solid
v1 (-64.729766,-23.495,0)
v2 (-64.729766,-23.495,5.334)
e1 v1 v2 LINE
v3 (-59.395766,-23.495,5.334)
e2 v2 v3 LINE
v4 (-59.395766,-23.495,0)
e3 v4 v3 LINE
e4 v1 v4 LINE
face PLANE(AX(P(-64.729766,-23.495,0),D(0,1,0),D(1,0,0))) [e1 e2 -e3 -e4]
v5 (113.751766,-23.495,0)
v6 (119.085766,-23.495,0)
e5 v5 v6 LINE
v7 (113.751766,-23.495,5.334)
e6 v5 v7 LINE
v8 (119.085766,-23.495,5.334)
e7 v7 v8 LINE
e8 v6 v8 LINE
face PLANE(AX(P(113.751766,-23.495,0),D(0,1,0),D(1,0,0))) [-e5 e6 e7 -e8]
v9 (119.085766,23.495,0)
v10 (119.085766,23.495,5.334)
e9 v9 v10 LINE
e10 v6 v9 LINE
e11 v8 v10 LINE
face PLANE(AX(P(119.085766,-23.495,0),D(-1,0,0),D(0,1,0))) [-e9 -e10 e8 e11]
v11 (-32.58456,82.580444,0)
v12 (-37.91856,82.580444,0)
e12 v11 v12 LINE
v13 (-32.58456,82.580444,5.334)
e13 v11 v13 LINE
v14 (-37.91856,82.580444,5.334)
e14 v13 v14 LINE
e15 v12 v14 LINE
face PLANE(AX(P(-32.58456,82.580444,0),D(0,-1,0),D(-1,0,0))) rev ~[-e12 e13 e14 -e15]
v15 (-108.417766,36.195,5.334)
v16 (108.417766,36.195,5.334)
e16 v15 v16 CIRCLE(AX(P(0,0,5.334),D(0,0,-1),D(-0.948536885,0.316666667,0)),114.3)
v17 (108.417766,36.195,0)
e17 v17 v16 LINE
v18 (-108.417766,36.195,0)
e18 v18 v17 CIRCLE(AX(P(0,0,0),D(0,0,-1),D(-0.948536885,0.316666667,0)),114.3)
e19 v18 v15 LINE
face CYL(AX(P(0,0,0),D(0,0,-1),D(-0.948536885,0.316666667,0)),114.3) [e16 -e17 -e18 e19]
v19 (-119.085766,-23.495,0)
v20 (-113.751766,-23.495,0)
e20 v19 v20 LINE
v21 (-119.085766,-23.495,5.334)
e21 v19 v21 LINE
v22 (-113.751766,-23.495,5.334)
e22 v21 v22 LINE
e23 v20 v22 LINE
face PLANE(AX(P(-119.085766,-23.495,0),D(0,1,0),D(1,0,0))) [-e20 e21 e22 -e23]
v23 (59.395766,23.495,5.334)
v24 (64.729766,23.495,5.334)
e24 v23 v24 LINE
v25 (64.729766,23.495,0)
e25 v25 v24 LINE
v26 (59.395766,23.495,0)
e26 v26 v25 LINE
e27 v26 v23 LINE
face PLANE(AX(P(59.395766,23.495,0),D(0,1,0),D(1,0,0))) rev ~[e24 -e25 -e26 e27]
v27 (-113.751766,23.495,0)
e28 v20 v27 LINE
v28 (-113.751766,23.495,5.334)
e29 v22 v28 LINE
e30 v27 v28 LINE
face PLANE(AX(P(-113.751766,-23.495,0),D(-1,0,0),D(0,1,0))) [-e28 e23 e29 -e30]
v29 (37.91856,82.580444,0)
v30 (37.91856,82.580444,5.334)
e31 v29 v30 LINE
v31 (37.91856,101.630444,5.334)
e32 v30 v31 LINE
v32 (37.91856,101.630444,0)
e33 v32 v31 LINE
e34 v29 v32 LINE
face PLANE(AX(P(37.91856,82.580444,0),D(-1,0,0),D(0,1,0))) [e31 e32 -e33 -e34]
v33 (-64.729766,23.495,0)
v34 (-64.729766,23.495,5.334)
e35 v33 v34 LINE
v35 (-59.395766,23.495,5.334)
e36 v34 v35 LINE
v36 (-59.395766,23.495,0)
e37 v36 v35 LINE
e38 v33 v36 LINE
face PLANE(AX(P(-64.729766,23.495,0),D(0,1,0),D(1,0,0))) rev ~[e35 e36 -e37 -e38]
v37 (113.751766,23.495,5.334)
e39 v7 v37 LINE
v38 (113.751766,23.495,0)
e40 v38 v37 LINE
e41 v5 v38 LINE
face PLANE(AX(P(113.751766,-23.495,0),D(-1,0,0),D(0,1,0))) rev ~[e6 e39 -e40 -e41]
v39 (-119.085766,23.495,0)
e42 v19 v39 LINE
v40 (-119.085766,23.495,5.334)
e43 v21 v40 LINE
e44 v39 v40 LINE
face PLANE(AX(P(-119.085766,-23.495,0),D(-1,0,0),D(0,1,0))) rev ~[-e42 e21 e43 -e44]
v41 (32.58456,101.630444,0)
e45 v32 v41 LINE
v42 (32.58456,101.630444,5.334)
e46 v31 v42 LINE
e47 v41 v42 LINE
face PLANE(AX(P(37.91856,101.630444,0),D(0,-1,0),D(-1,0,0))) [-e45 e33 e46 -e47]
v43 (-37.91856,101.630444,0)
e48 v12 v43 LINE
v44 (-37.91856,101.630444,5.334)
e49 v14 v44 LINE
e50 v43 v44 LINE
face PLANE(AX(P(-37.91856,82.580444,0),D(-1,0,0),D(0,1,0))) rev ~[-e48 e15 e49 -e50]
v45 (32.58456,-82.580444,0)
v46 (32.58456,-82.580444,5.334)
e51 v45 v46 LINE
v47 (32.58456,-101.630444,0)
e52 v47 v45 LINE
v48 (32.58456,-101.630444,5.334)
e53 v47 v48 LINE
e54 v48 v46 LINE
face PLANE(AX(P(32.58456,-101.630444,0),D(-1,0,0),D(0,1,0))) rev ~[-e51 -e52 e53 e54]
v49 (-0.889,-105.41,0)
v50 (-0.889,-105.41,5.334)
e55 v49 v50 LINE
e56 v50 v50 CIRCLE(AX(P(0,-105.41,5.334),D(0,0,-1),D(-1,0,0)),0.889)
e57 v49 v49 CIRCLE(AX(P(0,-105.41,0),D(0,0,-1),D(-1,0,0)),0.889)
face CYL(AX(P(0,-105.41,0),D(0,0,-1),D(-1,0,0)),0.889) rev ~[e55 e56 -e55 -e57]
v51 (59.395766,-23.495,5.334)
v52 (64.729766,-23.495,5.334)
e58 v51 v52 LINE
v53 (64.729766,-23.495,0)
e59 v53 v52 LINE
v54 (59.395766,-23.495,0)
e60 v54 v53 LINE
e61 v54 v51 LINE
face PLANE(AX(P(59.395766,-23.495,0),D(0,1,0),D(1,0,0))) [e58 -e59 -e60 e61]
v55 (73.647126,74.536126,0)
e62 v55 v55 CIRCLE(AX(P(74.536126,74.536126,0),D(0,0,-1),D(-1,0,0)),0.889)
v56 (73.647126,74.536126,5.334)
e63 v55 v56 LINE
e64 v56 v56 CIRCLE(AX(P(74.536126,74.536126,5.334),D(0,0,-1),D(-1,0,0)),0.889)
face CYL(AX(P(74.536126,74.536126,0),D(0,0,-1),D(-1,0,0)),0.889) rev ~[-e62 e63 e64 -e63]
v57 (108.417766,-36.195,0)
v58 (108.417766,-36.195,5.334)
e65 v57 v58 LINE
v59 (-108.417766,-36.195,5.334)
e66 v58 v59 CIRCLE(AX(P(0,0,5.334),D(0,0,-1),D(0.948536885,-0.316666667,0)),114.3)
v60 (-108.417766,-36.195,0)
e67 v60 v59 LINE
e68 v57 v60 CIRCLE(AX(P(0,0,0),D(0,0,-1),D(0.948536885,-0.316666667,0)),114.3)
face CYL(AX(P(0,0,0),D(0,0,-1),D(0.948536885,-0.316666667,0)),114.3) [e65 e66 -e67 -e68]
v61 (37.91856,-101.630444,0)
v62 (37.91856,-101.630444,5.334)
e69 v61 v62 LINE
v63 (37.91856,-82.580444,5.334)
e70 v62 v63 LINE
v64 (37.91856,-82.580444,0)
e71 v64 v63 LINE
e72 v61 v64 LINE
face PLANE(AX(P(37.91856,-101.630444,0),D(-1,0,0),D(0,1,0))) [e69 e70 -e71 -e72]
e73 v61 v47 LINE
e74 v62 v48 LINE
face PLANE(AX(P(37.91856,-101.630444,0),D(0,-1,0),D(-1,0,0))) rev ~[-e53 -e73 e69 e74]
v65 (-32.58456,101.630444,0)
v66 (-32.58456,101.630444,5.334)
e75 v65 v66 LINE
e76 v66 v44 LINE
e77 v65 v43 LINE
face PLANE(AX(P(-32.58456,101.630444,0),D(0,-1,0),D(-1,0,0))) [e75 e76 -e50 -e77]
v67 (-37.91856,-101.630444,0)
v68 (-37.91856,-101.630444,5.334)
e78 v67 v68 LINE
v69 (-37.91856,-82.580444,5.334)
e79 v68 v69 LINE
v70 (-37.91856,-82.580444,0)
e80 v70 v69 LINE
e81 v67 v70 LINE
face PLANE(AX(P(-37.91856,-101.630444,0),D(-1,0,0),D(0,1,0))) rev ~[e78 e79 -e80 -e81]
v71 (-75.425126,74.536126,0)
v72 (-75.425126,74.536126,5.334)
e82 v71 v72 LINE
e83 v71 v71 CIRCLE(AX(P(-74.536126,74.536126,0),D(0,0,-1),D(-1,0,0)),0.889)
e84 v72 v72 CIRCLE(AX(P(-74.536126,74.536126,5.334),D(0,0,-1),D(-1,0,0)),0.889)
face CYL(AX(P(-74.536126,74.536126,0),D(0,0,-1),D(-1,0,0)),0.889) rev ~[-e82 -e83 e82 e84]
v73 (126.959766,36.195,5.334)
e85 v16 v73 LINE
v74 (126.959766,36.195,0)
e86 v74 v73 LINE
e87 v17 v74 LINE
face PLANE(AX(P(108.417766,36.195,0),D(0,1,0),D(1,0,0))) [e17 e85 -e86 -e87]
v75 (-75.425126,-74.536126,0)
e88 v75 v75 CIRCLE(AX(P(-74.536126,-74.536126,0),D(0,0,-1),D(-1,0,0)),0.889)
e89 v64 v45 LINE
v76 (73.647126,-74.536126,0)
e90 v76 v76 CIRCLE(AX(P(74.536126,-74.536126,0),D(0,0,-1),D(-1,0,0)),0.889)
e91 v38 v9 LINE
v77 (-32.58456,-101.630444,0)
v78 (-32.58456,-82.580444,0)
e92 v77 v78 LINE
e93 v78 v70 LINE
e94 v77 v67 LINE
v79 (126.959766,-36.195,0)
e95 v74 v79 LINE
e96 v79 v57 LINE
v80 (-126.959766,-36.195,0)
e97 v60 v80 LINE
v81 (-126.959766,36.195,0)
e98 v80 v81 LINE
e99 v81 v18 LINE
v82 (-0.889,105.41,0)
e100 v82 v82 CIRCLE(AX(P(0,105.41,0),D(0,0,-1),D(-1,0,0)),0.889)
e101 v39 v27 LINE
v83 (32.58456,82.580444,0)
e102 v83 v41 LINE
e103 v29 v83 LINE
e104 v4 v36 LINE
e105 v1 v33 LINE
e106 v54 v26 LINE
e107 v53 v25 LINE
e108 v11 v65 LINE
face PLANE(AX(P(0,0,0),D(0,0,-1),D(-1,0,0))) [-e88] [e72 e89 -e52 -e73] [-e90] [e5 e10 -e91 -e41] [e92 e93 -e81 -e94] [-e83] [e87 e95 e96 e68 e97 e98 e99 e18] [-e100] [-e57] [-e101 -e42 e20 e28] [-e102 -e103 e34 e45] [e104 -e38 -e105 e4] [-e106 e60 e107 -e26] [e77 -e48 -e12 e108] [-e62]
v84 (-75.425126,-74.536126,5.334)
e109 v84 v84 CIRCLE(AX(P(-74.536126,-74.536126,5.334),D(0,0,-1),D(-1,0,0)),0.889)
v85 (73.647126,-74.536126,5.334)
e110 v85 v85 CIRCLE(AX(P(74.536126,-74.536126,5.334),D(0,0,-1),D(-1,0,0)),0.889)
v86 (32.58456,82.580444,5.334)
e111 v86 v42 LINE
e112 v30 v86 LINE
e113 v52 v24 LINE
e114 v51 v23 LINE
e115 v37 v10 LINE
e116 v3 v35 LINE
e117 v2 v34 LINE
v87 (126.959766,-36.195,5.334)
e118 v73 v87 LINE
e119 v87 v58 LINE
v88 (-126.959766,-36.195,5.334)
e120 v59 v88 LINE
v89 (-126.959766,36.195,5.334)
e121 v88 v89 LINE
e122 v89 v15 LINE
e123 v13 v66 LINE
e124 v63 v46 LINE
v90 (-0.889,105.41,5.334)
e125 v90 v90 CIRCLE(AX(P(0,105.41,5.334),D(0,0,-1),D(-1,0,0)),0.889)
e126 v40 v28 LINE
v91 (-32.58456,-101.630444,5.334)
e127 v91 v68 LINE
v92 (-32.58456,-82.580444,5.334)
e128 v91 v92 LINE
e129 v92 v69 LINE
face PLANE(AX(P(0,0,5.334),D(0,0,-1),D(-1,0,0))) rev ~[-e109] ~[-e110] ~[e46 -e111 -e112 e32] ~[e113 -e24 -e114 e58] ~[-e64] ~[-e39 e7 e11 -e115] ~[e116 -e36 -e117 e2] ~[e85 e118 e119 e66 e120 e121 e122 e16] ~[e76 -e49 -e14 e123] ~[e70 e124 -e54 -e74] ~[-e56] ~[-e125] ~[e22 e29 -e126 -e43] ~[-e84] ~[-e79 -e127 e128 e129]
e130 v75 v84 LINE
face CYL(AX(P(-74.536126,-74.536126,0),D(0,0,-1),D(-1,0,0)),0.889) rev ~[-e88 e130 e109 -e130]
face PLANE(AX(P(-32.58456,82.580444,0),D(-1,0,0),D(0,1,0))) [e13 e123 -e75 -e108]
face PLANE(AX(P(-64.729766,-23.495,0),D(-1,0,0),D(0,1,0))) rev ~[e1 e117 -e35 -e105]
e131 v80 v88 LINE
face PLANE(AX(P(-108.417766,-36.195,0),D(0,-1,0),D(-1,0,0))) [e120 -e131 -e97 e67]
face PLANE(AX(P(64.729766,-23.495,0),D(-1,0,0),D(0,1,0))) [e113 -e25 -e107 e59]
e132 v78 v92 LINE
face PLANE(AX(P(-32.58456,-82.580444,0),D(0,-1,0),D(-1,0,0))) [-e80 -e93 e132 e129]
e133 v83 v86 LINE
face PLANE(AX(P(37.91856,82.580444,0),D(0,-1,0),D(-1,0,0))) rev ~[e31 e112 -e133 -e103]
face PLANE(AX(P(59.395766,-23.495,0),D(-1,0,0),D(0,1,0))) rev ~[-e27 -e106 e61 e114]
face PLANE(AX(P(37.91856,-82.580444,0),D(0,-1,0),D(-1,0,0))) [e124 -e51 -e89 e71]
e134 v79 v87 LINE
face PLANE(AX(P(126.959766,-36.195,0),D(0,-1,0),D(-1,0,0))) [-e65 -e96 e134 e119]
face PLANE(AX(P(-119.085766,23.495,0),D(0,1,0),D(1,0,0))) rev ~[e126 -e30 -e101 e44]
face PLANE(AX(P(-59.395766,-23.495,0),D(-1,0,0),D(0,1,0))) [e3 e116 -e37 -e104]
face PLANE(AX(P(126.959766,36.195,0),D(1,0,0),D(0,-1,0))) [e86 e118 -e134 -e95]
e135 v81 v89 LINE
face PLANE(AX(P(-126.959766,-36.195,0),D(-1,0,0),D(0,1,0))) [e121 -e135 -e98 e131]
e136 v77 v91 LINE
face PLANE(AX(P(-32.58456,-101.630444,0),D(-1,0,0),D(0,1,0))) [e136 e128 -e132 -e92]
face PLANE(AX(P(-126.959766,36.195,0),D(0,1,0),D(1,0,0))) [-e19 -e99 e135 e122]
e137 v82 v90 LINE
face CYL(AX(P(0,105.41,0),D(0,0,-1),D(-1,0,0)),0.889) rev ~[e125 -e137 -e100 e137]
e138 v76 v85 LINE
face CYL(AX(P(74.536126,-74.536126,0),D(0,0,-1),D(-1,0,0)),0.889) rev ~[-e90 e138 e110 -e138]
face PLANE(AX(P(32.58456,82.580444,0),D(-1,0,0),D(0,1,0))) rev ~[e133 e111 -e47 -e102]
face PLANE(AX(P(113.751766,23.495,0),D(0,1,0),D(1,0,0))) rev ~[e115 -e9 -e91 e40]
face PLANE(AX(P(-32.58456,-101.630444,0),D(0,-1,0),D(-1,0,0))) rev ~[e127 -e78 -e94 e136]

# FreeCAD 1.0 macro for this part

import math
import FreeCAD as App
import Part
import Sketcher
Q = App.Units.Quantity

doc = App.newDocument("Part")
body = doc.addObject("PartDesign::Body", "Body")

sketch1 = doc.addObject("Sketcher::SketchObject", "Sketch")
body.addObject(sketch1)
sketch1.AttachmentSupport = (doc.XY_Plane, [""])
sketch1.MapMode = "FlatFace"
sketch1.addGeometry([
    Part.LineSegment(App.Vector(108, -36, 0), App.Vector(127, -36, 0)),
    Part.LineSegment(App.Vector(127, -36, 0), App.Vector(127, 36, 0)),
    Part.LineSegment(App.Vector(127, 36, 0), App.Vector(108, 36, 0)),
    Part.ArcOfCircle(Part.Circle(App.Vector(0, 0, 0), App.Vector(0, 0, 1), 114), math.radians(18), math.radians(162)),
    Part.LineSegment(App.Vector(-108, 36, 0), App.Vector(-127, 36, 0)),
    Part.LineSegment(App.Vector(-127, 36, 0), App.Vector(-127, -36, 0)),
    Part.LineSegment(App.Vector(-127, -36, 0), App.Vector(-108, -36, 0)),
    Part.ArcOfCircle(Part.Circle(App.Vector(0, 0, 0), App.Vector(0, 0, 1), 114), math.radians(-162), math.radians(-18)),
    Part.LineSegment(App.Vector(114, -23, 0), App.Vector(114, 23, 0)),
    Part.LineSegment(App.Vector(114, 23, 0), App.Vector(119, 23, 0)),
    Part.LineSegment(App.Vector(119, 23, 0), App.Vector(119, -23, 0)),
    Part.LineSegment(App.Vector(119, -23, 0), App.Vector(114, -23, 0)),
    Part.LineSegment(App.Vector(59, -23, 0), App.Vector(59, 23, 0)),
    Part.LineSegment(App.Vector(59, 23, 0), App.Vector(65, 23, 0)),
    Part.LineSegment(App.Vector(65, 23, 0), App.Vector(65, -23, 0)),
    Part.LineSegment(App.Vector(65, -23, 0), App.Vector(59, -23, 0)),
    Part.LineSegment(App.Vector(-65, -23, 0), App.Vector(-65, 23, 0)),
    Part.LineSegment(App.Vector(-65, 23, 0), App.Vector(-59, 23, 0)),
    Part.LineSegment(App.Vector(-59, 23, 0), App.Vector(-59, -23, 0)),
    Part.LineSegment(App.Vector(-59, -23, 0), App.Vector(-65, -23, 0)),
    Part.LineSegment(App.Vector(-119, -23, 0), App.Vector(-119, 23, 0)),
    Part.LineSegment(App.Vector(-119, 23, 0), App.Vector(-114, 23, 0)),
    Part.LineSegment(App.Vector(-114, 23, 0), App.Vector(-114, -23, 0)),
    Part.LineSegment(App.Vector(-114, -23, 0), App.Vector(-119, -23, 0)),
], False)
sketch1.addConstraint([
    Sketcher.Constraint("Coincident", 0, 2, 1, 1),
    Sketcher.Constraint("Coincident", 1, 2, 2, 1),
    Sketcher.Constraint("Coincident", 2, 2, 3, 1),
    Sketcher.Constraint("Coincident", 3, 2, 4, 1),
    Sketcher.Constraint("Coincident", 4, 2, 5, 1),
    Sketcher.Constraint("Coincident", 5, 2, 6, 1),
    Sketcher.Constraint("Coincident", 6, 2, 7, 1),
    Sketcher.Constraint("Coincident", 7, 2, 0, 1),
    Sketcher.Constraint("Coincident", 8, 2, 9, 1),
    Sketcher.Constraint("Coincident", 9, 2, 10, 1),
    Sketcher.Constraint("Coincident", 10, 2, 11, 1),
    Sketcher.Constraint("Coincident", 11, 2, 8, 1),
    Sketcher.Constraint("Coincident", 12, 2, 13, 1),
    Sketcher.Constraint("Coincident", 13, 2, 14, 1),
    Sketcher.Constraint("Coincident", 14, 2, 15, 1),
    Sketcher.Constraint("Coincident", 15, 2, 12, 1),
    Sketcher.Constraint("Coincident", 16, 2, 17, 1),
    Sketcher.Constraint("Coincident", 17, 2, 18, 1),
    Sketcher.Constraint("Coincident", 18, 2, 19, 1),
    Sketcher.Constraint("Coincident", 19, 2, 16, 1),
    Sketcher.Constraint("Coincident", 20, 2, 21, 1),
    Sketcher.Constraint("Coincident", 21, 2, 22, 1),
    Sketcher.Constraint("Coincident", 22, 2, 23, 1),
    Sketcher.Constraint("Coincident", 23, 2, 20, 1),
    Sketcher.Constraint("Horizontal", 0),
    Sketcher.Constraint("Vertical", 1),
    Sketcher.Constraint("Horizontal", 2),
    Sketcher.Constraint("Horizontal", 4),
    Sketcher.Constraint("Vertical", 5),
    Sketcher.Constraint("Horizontal", 6),
    Sketcher.Constraint("Vertical", 8),
    Sketcher.Constraint("Horizontal", 9),
    Sketcher.Constraint("Vertical", 10),
    Sketcher.Constraint("Horizontal", 11),
    Sketcher.Constraint("Vertical", 12),
    Sketcher.Constraint("Horizontal", 13),
    Sketcher.Constraint("Vertical", 14),
    Sketcher.Constraint("Horizontal", 15),
    Sketcher.Constraint("Vertical", 16),
    Sketcher.Constraint("Horizontal", 17),
    Sketcher.Constraint("Vertical", 18),
    Sketcher.Constraint("Horizontal", 19),
    Sketcher.Constraint("Vertical", 20),
    Sketcher.Constraint("Horizontal", 21),
    Sketcher.Constraint("Vertical", 22),
    Sketcher.Constraint("Horizontal", 23),
    Sketcher.Constraint("Coincident", 3, 3, -1, 1),
    Sketcher.Constraint("Coincident", 7, 3, -1, 1),
    Sketcher.Constraint("Equal", 3, 7),
    Sketcher.Constraint("Symmetric", 0, 2, 4, 2, -1, 1),
    Sketcher.Constraint("Symmetric", 14, 2, 16, 2, -1, 1),
    Sketcher.Constraint("Symmetric", 12, 2, 18, 2, -1, 1),
    Sketcher.Constraint("Symmetric", 10, 2, 20, 2, -1, 1),
    Sketcher.Constraint("Symmetric", 8, 2, 22, 2, -1, 1),
    Sketcher.Constraint("Horizontal", 2, 2, 3, 2),
    Sketcher.Constraint("Horizontal", 0, 2, 5, 2),
    Sketcher.Constraint("Horizontal", 9, 2, 12, 2),
    Sketcher.Constraint("Horizontal", 11, 2, 14, 2),
    Sketcher.Constraint("Horizontal", 13, 2, 16, 2),
    Sketcher.Constraint("Equal", 11, 13),
    Sketcher.Constraint("Radius", 3, Q("4.5 in")),
    Sketcher.Constraint("DistanceX", 0, 1, 0, 2, Q("0.73 in")),
    Sketcher.Constraint("DistanceX", 9, 1, 9, 2, Q("0.21 in")),
    Sketcher.Constraint("DistanceY", 1, 1, 1, 2, Q("2.85 in")),
    Sketcher.Constraint("DistanceY", 8, 1, 8, 2, Q("1.85 in")),
    Sketcher.Constraint("DistanceX", 2, 2, 8, 2, Q("0.21 in")),
    Sketcher.Constraint("DistanceX", 12, 2, 2, 2, Q("1.93 in")),
])
pad1 = doc.addObject("PartDesign::Pad", "Pad")
body.addObject(pad1)
pad1.Profile = sketch1
pad1.Length = Q("0.21 in")

sketch2 = doc.addObject("Sketcher::SketchObject", "Sketch001")
body.addObject(sketch2)
sketch2.AttachmentSupport = (doc.XY_Plane, [""])
sketch2.MapMode = "FlatFace"
sketch2.addGeometry([
    Part.Circle(App.Vector(0, 105.4, 0), App.Vector(0, 0, 1), 0.9),
    Part.Circle(App.Vector(0, -105.4, 0), App.Vector(0, 0, 1), 0.9),
    Part.Circle(App.Vector(74.5, 74.5, 0), App.Vector(0, 0, 1), 0.9),
    Part.Circle(App.Vector(-74.5, 74.5, 0), App.Vector(0, 0, 1), 0.9),
    Part.Circle(App.Vector(-74.5, -74.5, 0), App.Vector(0, 0, 1), 0.9),
    Part.Circle(App.Vector(74.5, -74.5, 0), App.Vector(0, 0, 1), 0.9),
], False)
sketch2.addConstraint([
    Sketcher.Constraint("Equal", 0, 1),
    Sketcher.Constraint("Equal", 1, 2),
    Sketcher.Constraint("Equal", 2, 3),
    Sketcher.Constraint("Equal", 3, 4),
    Sketcher.Constraint("Equal", 4, 5),
    Sketcher.Constraint("Symmetric", 0, 3, 1, 3, -1, 1),
    Sketcher.Constraint("Symmetric", 2, 3, 4, 3, -1, 1),
    Sketcher.Constraint("Symmetric", 3, 3, 5, 3, -1, 1),
    Sketcher.Constraint("Symmetric", 2, 3, 3, 3, -2),
    Sketcher.Constraint("PointOnObject", 0, 3, -2),
    Sketcher.Constraint("Diameter", 0, Q("0.07 in")),
    Sketcher.Constraint("DistanceY", 1, 3, 0, 3, Q("8.3 in")),
    Sketcher.Constraint("DistanceX", 3, 3, 2, 3, Q("149.072252 mm")),
    Sketcher.Constraint("DistanceY", 4, 3, 3, 3, Q("149.072252 mm")),
])
pocket1 = doc.addObject("PartDesign::Pocket", "Pocket")
body.addObject(pocket1)
pocket1.Profile = sketch2
pocket1.Length = Q("0.21 in")
pocket1.Reversed = True

sketch3 = doc.addObject("Sketcher::SketchObject", "Sketch002")
body.addObject(sketch3)
sketch3.AttachmentSupport = (doc.XY_Plane, [""])
sketch3.MapMode = "FlatFace"
sketch3.addGeometry([
    Part.LineSegment(App.Vector(38, 102, 0), App.Vector(38, 83, 0)),
    Part.LineSegment(App.Vector(38, 83, 0), App.Vector(33, 83, 0)),
    Part.LineSegment(App.Vector(33, 83, 0), App.Vector(33, 102, 0)),
    Part.LineSegment(App.Vector(33, 102, 0), App.Vector(38, 102, 0)),
    Part.LineSegment(App.Vector(-33, 102, 0), App.Vector(-33, 83, 0)),
    Part.LineSegment(App.Vector(-33, 83, 0), App.Vector(-38, 83, 0)),
    Part.LineSegment(App.Vector(-38, 83, 0), App.Vector(-38, 102, 0)),
    Part.LineSegment(App.Vector(-38, 102, 0), App.Vector(-33, 102, 0)),
    Part.LineSegment(App.Vector(-33, -83, 0), App.Vector(-33, -102, 0)),
    Part.LineSegment(App.Vector(-33, -102, 0), App.Vector(-38, -102, 0)),
    Part.LineSegment(App.Vector(-38, -102, 0), App.Vector(-38, -83, 0)),
    Part.LineSegment(App.Vector(-38, -83, 0), App.Vector(-33, -83, 0)),
    Part.LineSegment(App.Vector(38, -83, 0), App.Vector(38, -102, 0)),
    Part.LineSegment(App.Vector(38, -102, 0), App.Vector(33, -102, 0)),
    Part.LineSegment(App.Vector(33, -102, 0), App.Vector(33, -83, 0)),
    Part.LineSegment(App.Vector(33, -83, 0), App.Vector(38, -83, 0)),
], False)
sketch3.addConstraint([
    Sketcher.Constraint("Coincident", 0, 2, 1, 1),
    Sketcher.Constraint("Coincident", 1, 2, 2, 1),
    Sketcher.Constraint("Coincident", 2, 2, 3, 1),
    Sketcher.Constraint("Coincident", 3, 2, 0, 1),
    Sketcher.Constraint("Coincident", 4, 2, 5, 1),
    Sketcher.Constraint("Coincident", 5, 2, 6, 1),
    Sketcher.Constraint("Coincident", 6, 2, 7, 1),
    Sketcher.Constraint("Coincident", 7, 2, 4, 1),
    Sketcher.Constraint("Coincident", 8, 2, 9, 1),
    Sketcher.Constraint("Coincident", 9, 2, 10, 1),
    Sketcher.Constraint("Coincident", 10, 2, 11, 1),
    Sketcher.Constraint("Coincident", 11, 2, 8, 1),
    Sketcher.Constraint("Coincident", 12, 2, 13, 1),
    Sketcher.Constraint("Coincident", 13, 2, 14, 1),
    Sketcher.Constraint("Coincident", 14, 2, 15, 1),
    Sketcher.Constraint("Coincident", 15, 2, 12, 1),
    Sketcher.Constraint("Vertical", 0),
    Sketcher.Constraint("Horizontal", 1),
    Sketcher.Constraint("Vertical", 2),
    Sketcher.Constraint("Horizontal", 3),
    Sketcher.Constraint("Vertical", 4),
    Sketcher.Constraint("Horizontal", 5),
    Sketcher.Constraint("Vertical", 6),
    Sketcher.Constraint("Horizontal", 7),
    Sketcher.Constraint("Vertical", 8),
    Sketcher.Constraint("Horizontal", 9),
    Sketcher.Constraint("Vertical", 10),
    Sketcher.Constraint("Horizontal", 11),
    Sketcher.Constraint("Vertical", 12),
    Sketcher.Constraint("Horizontal", 13),
    Sketcher.Constraint("Vertical", 14),
    Sketcher.Constraint("Horizontal", 15),
    Sketcher.Constraint("Symmetric", 2, 2, 8, 2, -1, 1),
    Sketcher.Constraint("Symmetric", 0, 2, 10, 2, -1, 1),
    Sketcher.Constraint("Symmetric", 6, 2, 12, 2, -1, 1),
    Sketcher.Constraint("Symmetric", 4, 2, 14, 2, -1, 1),
    Sketcher.Constraint("Symmetric", 1, 2, 4, 2, -2),
    Sketcher.Constraint("Symmetric", 3, 2, 6, 2, -2),
    Sketcher.Constraint("DistanceX", 1, 2, 1, 1, Q("0.21 in")),
    Sketcher.Constraint("DistanceY", 0, 2, 0, 1, Q("0.75 in")),
    Sketcher.Constraint("DistanceX", -1, 1, 0, 2, Q("37.91856 mm")),
    Sketcher.Constraint("DistanceY", -1, 1, 0, 2, Q("82.580444 mm")),
])
pocket2 = doc.addObject("PartDesign::Pocket", "Pocket001")
body.addObject(pocket2)
pocket2.Profile = sketch3
pocket2.Length = Q("0.21 in")
pocket2.Reversed = True

doc.recompute()
